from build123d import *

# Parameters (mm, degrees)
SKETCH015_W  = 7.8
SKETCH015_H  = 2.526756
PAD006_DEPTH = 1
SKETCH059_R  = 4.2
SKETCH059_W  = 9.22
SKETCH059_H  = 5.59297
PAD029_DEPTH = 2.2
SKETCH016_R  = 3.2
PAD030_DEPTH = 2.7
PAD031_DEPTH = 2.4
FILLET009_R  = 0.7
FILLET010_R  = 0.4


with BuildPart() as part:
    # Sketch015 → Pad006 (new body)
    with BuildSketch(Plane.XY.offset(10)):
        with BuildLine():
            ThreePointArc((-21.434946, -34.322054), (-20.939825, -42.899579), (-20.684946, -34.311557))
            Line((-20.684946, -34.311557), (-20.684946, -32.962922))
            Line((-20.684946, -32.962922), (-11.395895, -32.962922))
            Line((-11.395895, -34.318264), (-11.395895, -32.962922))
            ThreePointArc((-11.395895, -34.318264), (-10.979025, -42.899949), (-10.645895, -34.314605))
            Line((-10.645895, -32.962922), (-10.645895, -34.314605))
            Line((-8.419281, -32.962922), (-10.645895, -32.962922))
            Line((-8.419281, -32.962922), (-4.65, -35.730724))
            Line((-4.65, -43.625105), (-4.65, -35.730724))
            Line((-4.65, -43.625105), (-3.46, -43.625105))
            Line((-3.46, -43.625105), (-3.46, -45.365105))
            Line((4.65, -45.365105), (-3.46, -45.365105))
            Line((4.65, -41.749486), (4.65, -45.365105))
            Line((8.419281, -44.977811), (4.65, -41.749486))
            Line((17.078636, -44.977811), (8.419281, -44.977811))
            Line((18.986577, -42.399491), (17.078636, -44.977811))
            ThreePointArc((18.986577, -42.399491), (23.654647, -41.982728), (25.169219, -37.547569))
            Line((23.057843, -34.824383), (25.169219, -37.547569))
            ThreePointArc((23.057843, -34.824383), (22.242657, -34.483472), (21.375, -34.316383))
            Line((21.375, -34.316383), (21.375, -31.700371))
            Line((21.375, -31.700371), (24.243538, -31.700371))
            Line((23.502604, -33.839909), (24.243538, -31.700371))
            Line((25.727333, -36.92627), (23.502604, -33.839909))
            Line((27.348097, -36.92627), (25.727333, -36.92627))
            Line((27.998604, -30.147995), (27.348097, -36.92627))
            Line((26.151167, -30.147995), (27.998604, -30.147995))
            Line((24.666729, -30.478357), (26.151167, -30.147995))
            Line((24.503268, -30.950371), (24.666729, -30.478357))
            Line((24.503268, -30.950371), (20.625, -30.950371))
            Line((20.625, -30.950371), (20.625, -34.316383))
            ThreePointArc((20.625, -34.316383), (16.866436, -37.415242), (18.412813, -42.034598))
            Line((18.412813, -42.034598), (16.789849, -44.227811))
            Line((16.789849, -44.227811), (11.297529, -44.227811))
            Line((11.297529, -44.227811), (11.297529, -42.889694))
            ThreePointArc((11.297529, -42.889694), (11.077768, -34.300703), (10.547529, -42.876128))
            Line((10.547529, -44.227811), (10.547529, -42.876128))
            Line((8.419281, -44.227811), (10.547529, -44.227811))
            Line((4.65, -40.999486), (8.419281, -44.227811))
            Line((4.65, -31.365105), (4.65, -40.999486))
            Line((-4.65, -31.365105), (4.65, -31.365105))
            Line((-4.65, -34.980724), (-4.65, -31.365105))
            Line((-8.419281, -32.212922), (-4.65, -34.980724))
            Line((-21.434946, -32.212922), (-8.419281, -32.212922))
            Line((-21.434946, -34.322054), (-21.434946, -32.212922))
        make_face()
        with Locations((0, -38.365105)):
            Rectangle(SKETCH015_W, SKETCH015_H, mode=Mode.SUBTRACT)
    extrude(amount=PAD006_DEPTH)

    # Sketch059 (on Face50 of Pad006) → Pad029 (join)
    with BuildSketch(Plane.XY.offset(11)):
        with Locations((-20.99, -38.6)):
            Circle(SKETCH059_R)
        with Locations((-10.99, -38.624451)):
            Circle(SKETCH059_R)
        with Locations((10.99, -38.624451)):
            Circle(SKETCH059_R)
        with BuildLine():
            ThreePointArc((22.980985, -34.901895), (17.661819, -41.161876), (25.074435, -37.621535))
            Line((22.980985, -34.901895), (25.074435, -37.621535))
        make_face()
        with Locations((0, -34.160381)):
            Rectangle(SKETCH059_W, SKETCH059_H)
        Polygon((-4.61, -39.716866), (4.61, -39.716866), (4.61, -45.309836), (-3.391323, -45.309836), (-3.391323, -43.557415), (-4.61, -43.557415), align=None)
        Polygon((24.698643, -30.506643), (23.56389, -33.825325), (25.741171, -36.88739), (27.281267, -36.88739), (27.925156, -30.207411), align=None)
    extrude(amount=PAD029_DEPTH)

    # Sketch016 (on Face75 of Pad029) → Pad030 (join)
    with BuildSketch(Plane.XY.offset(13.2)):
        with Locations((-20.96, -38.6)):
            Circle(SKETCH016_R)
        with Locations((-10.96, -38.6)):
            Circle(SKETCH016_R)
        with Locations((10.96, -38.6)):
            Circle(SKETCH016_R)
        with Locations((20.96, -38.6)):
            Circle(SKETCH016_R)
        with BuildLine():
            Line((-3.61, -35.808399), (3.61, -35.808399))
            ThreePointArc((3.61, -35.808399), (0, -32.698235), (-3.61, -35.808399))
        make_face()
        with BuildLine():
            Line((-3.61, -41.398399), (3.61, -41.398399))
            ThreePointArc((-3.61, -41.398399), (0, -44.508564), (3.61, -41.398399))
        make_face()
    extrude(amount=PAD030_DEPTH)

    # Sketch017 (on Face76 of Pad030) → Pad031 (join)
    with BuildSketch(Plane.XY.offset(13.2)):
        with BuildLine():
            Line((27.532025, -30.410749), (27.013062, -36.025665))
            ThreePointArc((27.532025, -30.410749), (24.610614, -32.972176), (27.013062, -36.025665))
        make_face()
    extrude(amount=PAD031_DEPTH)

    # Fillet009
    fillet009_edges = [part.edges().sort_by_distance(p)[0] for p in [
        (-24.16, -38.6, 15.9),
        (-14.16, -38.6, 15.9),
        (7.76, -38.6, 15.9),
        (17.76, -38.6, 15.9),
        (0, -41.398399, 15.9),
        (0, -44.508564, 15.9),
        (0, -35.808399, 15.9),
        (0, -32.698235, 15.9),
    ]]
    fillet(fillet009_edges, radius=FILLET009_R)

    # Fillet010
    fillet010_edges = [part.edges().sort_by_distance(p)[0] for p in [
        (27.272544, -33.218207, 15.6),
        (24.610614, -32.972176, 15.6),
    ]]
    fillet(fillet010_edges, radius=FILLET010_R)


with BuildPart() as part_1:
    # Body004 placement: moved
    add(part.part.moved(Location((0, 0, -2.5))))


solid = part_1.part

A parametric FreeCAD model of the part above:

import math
import FreeCAD as App
import Part
import Sketcher
Q = App.Units.Quantity


def edges_at(feature, points):
    """Names of the edges that pass closest to the given points."""
    edges = feature.Shape.Edges
    near = lambda p: min(range(len(edges)), key=lambda i: edges[i].distToShape(Part.Vertex(*p))[0])
    return sorted({f"Edge{near(p) + 1}" for p in points})

doc = App.newDocument("Part")
body = doc.addObject("PartDesign::Body", "Body")

# Sketch on XY plane
sketch1 = body.newObject("Sketcher::SketchObject", "Sketch")
sketch1.AttachmentSupport = (doc.getObject("XY_Plane"), [""])
sketch1.MapMode = "FlatFace"
sketch1.AttachmentOffset = App.Placement(App.Vector(0, 0, 10), App.Rotation())
sketch1.addGeometry([
    Part.ArcOfCircle(Part.Circle(App.Vector(-21, -38.6, 0), App.Vector(0, 0, 1), 4.3), math.radians(96), math.radians(446)),  # 0
    Part.LineSegment(App.Vector(-20.68, -34.31, 0), App.Vector(-20.68, -32.96, 0)),  # 1
    Part.LineSegment(App.Vector(-20.68, -32.96, 0), App.Vector(-11.4, -32.96, 0)),  # 2
    Part.LineSegment(App.Vector(-11.4, -32.96, 0), App.Vector(-11.4, -34.32, 0)),  # 3
    Part.ArcOfCircle(Part.Circle(App.Vector(-11, -38.6, 0), App.Vector(0, 0, 1), 4.3), math.radians(95), math.radians(445)),  # 4
    Part.LineSegment(App.Vector(-10.65, -34.31, 0), App.Vector(-10.65, -32.96, 0)),  # 5
    Part.LineSegment(App.Vector(-10.65, -32.96, 0), App.Vector(-8.42, -32.96, 0)),  # 6
    Part.LineSegment(App.Vector(-8.42, -32.96, 0), App.Vector(-4.65, -35.73, 0)),  # 7
    Part.LineSegment(App.Vector(-4.65, -35.73, 0), App.Vector(-4.65, -43.63, 0)),  # 8
    Part.LineSegment(App.Vector(-4.65, -43.63, 0), App.Vector(-3.46, -43.63, 0)),  # 9
    Part.LineSegment(App.Vector(-3.46, -43.63, 0), App.Vector(-3.46, -45.37, 0)),  # 10
    Part.LineSegment(App.Vector(-3.46, -45.37, 0), App.Vector(4.65, -45.37, 0)),  # 11
    Part.LineSegment(App.Vector(4.65, -45.37, 0), App.Vector(4.65, -41.75, 0)),  # 12
    Part.LineSegment(App.Vector(4.65, -41.75, 0), App.Vector(8.42, -44.98, 0)),  # 13
    Part.LineSegment(App.Vector(8.42, -44.98, 0), App.Vector(17.08, -44.98, 0)),  # 14
    Part.LineSegment(App.Vector(17.08, -44.98, 0), App.Vector(18.99, -42.4, 0)),  # 15
    Part.ArcOfCircle(Part.Circle(App.Vector(21, -38.6, 0), App.Vector(0, 0, 1), 4.3), math.radians(-118), math.radians(14)),  # 16
    Part.LineSegment(App.Vector(25.17, -37.55, 0), App.Vector(23.06, -34.82, 0)),  # 17
    Part.ArcOfCircle(Part.Circle(App.Vector(21, -38.6, 0), App.Vector(0, 0, 1), 4.3), math.radians(61), math.radians(85)),  # 18
    Part.LineSegment(App.Vector(21.38, -34.32, 0), App.Vector(21.38, -31.7, 0)),  # 19
    Part.LineSegment(App.Vector(21.38, -31.7, 0), App.Vector(24.24, -31.7, 0)),  # 20
    Part.LineSegment(App.Vector(24.24, -31.7, 0), App.Vector(23.5, -33.84, 0)),  # 21
    Part.LineSegment(App.Vector(23.5, -33.84, 0), App.Vector(25.73, -36.93, 0)),  # 22
    Part.LineSegment(App.Vector(25.73, -36.93, 0), App.Vector(27.35, -36.93, 0)),  # 23
    Part.LineSegment(App.Vector(27.35, -36.93, 0), App.Vector(28, -30.15, 0)),  # 24
    Part.LineSegment(App.Vector(28, -30.15, 0), App.Vector(26.15, -30.15, 0)),  # 25
    Part.LineSegment(App.Vector(26.15, -30.15, 0), App.Vector(24.67, -30.48, 0)),  # 26
    Part.LineSegment(App.Vector(24.67, -30.48, 0), App.Vector(24.5, -30.95, 0)),  # 27
    Part.LineSegment(App.Vector(24.5, -30.95, 0), App.Vector(20.62, -30.95, 0)),  # 28
    Part.LineSegment(App.Vector(20.62, -30.95, 0), App.Vector(20.62, -34.32, 0)),  # 29
    Part.ArcOfCircle(Part.Circle(App.Vector(21, -38.6, 0), App.Vector(0, 0, 1), 4.3), math.radians(95), math.radians(233)),  # 30
    Part.LineSegment(App.Vector(18.41, -42.03, 0), App.Vector(16.79, -44.23, 0)),  # 31
    Part.LineSegment(App.Vector(16.79, -44.23, 0), App.Vector(11.3, -44.23, 0)),  # 32
    Part.LineSegment(App.Vector(11.3, -44.23, 0), App.Vector(11.3, -42.89, 0)),  # 33
    Part.ArcOfCircle(Part.Circle(App.Vector(11, -38.6, 0), App.Vector(0, 0, 1), 4.3), math.radians(-86), math.radians(264)),  # 34
    Part.LineSegment(App.Vector(10.55, -42.88, 0), App.Vector(10.55, -44.23, 0)),  # 35
    Part.LineSegment(App.Vector(10.55, -44.23, 0), App.Vector(8.42, -44.23, 0)),  # 36
    Part.LineSegment(App.Vector(8.42, -44.23, 0), App.Vector(4.65, -41, 0)),  # 37
    Part.LineSegment(App.Vector(4.65, -41, 0), App.Vector(4.65, -31.37, 0)),  # 38
    Part.LineSegment(App.Vector(4.65, -31.37, 0), App.Vector(-4.65, -31.37, 0)),  # 39
    Part.LineSegment(App.Vector(-4.65, -31.37, 0), App.Vector(-4.65, -34.98, 0)),  # 40
    Part.LineSegment(App.Vector(-4.65, -34.98, 0), App.Vector(-8.42, -32.21, 0)),  # 41
    Part.LineSegment(App.Vector(-8.42, -32.21, 0), App.Vector(-21.43, -32.21, 0)),  # 42
    Part.LineSegment(App.Vector(-21.43, -32.21, 0), App.Vector(-21.43, -34.32, 0)),  # 43
    Part.LineSegment(App.Vector(3.9, -39.63, 0), App.Vector(-3.9, -39.63, 0)),  # 44
    Part.LineSegment(App.Vector(-3.9, -39.63, 0), App.Vector(-3.9, -37.1, 0)),  # 45
    Part.LineSegment(App.Vector(-3.9, -37.1, 0), App.Vector(3.9, -37.1, 0)),  # 46
    Part.LineSegment(App.Vector(3.9, -37.1, 0), App.Vector(3.9, -39.63, 0)),  # 47
], False)
sketch1.addConstraint([
    Sketcher.Constraint("Coincident", 0, 2, 1, 1),
    Sketcher.Constraint("Coincident", 1, 2, 2, 1),
    Sketcher.Constraint("Coincident", 2, 2, 3, 1),
    Sketcher.Constraint("Coincident", 3, 2, 4, 1),
    Sketcher.Constraint("Coincident", 4, 2, 5, 1),
    Sketcher.Constraint("Coincident", 5, 2, 6, 1),
    Sketcher.Constraint("Coincident", 6, 2, 7, 1),
    Sketcher.Constraint("Coincident", 7, 2, 8, 1),
    Sketcher.Constraint("Coincident", 8, 2, 9, 1),
    Sketcher.Constraint("Coincident", 9, 2, 10, 1),
    Sketcher.Constraint("Coincident", 10, 2, 11, 1),
    Sketcher.Constraint("Coincident", 11, 2, 12, 1),
    Sketcher.Constraint("Coincident", 12, 2, 13, 1),
    Sketcher.Constraint("Coincident", 13, 2, 14, 1),
    Sketcher.Constraint("Coincident", 14, 2, 15, 1),
    Sketcher.Constraint("Coincident", 15, 2, 16, 1),
    Sketcher.Constraint("Coincident", 16, 2, 17, 1),
    Sketcher.Constraint("Coincident", 17, 2, 18, 1),
    Sketcher.Constraint("Coincident", 18, 2, 19, 1),
    Sketcher.Constraint("Coincident", 19, 2, 20, 1),
    Sketcher.Constraint("Coincident", 20, 2, 21, 1),
    Sketcher.Constraint("Coincident", 21, 2, 22, 1),
    Sketcher.Constraint("Coincident", 22, 2, 23, 1),
    Sketcher.Constraint("Coincident", 23, 2, 24, 1),
    Sketcher.Constraint("Coincident", 24, 2, 25, 1),
    Sketcher.Constraint("Coincident", 25, 2, 26, 1),
    Sketcher.Constraint("Coincident", 26, 2, 27, 1),
    Sketcher.Constraint("Coincident", 27, 2, 28, 1),
    Sketcher.Constraint("Coincident", 28, 2, 29, 1),
    Sketcher.Constraint("Coincident", 29, 2, 30, 1),
    Sketcher.Constraint("Coincident", 30, 2, 31, 1),
    Sketcher.Constraint("Coincident", 31, 2, 32, 1),
    Sketcher.Constraint("Coincident", 32, 2, 33, 1),
    Sketcher.Constraint("Coincident", 33, 2, 34, 1),
    Sketcher.Constraint("Coincident", 34, 2, 35, 1),
    Sketcher.Constraint("Coincident", 35, 2, 36, 1),
    Sketcher.Constraint("Coincident", 36, 2, 37, 1),
    Sketcher.Constraint("Coincident", 37, 2, 38, 1),
    Sketcher.Constraint("Coincident", 38, 2, 39, 1),
    Sketcher.Constraint("Coincident", 39, 2, 40, 1),
    Sketcher.Constraint("Coincident", 40, 2, 41, 1),
    Sketcher.Constraint("Coincident", 41, 2, 42, 1),
    Sketcher.Constraint("Coincident", 42, 2, 43, 1),
    Sketcher.Constraint("Coincident", 43, 2, 0, 1),
    Sketcher.Constraint("Coincident", 44, 2, 45, 1),
    Sketcher.Constraint("Coincident", 45, 2, 46, 1),
    Sketcher.Constraint("Coincident", 46, 2, 47, 1),
    Sketcher.Constraint("Coincident", 47, 2, 44, 1),
    Sketcher.Constraint("Vertical", 1),
    Sketcher.Constraint("Horizontal", 2),
    Sketcher.Constraint("Vertical", 3),
    Sketcher.Constraint("Vertical", 5),
    Sketcher.Constraint("Horizontal", 6),
    Sketcher.Constraint("Vertical", 8),
    Sketcher.Constraint("Horizontal", 9),
    Sketcher.Constraint("Vertical", 10),
    Sketcher.Constraint("Horizontal", 11),
    Sketcher.Constraint("Vertical", 12),
    Sketcher.Constraint("Horizontal", 14),
    Sketcher.Constraint("Vertical", 19),
    Sketcher.Constraint("Horizontal", 20),
    Sketcher.Constraint("Horizontal", 23),
    Sketcher.Constraint("Horizontal", 25),
    Sketcher.Constraint("Horizontal", 28),
    Sketcher.Constraint("Vertical", 29),
    Sketcher.Constraint("Horizontal", 32),
    Sketcher.Constraint("Vertical", 33),
    Sketcher.Constraint("Vertical", 35),
    Sketcher.Constraint("Horizontal", 36),
    Sketcher.Constraint("Vertical", 38),
    Sketcher.Constraint("Horizontal", 39),
    Sketcher.Constraint("Vertical", 40),
    Sketcher.Constraint("Horizontal", 42),
    Sketcher.Constraint("Vertical", 43),
    Sketcher.Constraint("Horizontal", 44),
    Sketcher.Constraint("Vertical", 45),
    Sketcher.Constraint("Horizontal", 46),
    Sketcher.Constraint("Vertical", 47),
    Sketcher.Constraint("Coincident", 18, 3, 16, 3),
    Sketcher.Constraint("Coincident", 30, 3, 16, 3),
    Sketcher.Constraint("Equal", 0, 4),
    Sketcher.Constraint("Equal", 4, 16),
    Sketcher.Constraint("Equal", 16, 30),
    Sketcher.Constraint("Equal", 30, 34),
    Sketcher.Constraint("Symmetric", 0, 3, 16, 3, -2),
    Sketcher.Constraint("Symmetric", 4, 3, 34, 3, -2),
    Sketcher.Constraint("Parallel", 21, 27),
    Sketcher.Constraint("Parallel", 15, 31),
    Sketcher.Constraint("Parallel", 13, 37),
    Sketcher.Constraint("Parallel", 7, 41),
    Sketcher.Constraint("Horizontal", 0, 3, 4, 3),
    Sketcher.Constraint("Horizontal", 2, 2, 5, 2),
    Sketcher.Constraint("Horizontal", 18, 2, 29, 2),
    Sketcher.Constraint("Horizontal", 32, 2, 35, 2),
    Sketcher.Constraint("Vertical", 13, 2, 36, 2),
    Sketcher.Constraint("Vertical", 12, 2, 37, 2),
    Sketcher.Constraint("Vertical", 8, 2, 39, 2),
    Sketcher.Constraint("Vertical", 6, 2, 41, 2),
    Sketcher.Constraint("Equal", 5, 35),
    Sketcher.Constraint("Equal", 12, 40),
    Sketcher.Constraint("Radius", 0, Q("4.3 mm")),
    Sketcher.Constraint("DistanceX", 39, 2, 39, 1, Q("9.3 mm")),
    Sketcher.Constraint("DistanceX", 44, 2, 44, 1, Q("7.8 mm")),
    Sketcher.Constraint("DistanceX", 0, 3, -1, 1, Q("20.999998 mm")),
    Sketcher.Constraint("DistanceX", -1, 1, 34, 3, Q("10.999998 mm")),
    Sketcher.Constraint("DistanceX", 9, 1, 9, 2, Q("1.19 mm")),
    Sketcher.Constraint("DistanceY", 10, 2, 10, 1, Q("1.74 mm")),
    Sketcher.Constraint("DistanceY", 0, 3, -1, 1, Q("38.6 mm")),
    Sketcher.Constraint("DistanceX", 44, 2, -1, 1, Q("3.9 mm")),
    Sketcher.Constraint("DistanceX", 7, 2, -1, 1, Q("4.65 mm")),
    Sketcher.Constraint("DistanceX", 3, 2, 4, 2, Q("0.75 mm")),
    Sketcher.Constraint("DistanceY", 20, 2, 27, 2, Q("0.75 mm")),
    Sketcher.Constraint("DistanceX", 28, 2, 19, 2, Q("0.75 mm")),
    Sketcher.Constraint("DistanceY", 14, 2, 31, 2, Q("0.75 mm")),
    Sketcher.Constraint("DistanceX", 34, 2, 33, 2, Q("0.75 mm")),
    Sketcher.Constraint("DistanceY", 7, 2, 40, 2, Q("0.75 mm")),
    Sketcher.Constraint("DistanceX", 42, 2, 1, 2, Q("0.75 mm")),
    Sketcher.Constraint("DistanceX", -1, 1, 18, 2, Q("21.375 mm")),
    Sketcher.Constraint("DistanceY", 17, 2, 18, 2, Q("0.508 mm")),
    Sketcher.Constraint("DistanceX", 21, 2, 24, 2, Q("4.496 mm")),
    Sketcher.Constraint("Distance", 21, Q("2.264201 mm")),
    Sketcher.Constraint("DistanceX", 2, 1, 2, 2, Q("9.289051 mm")),
    Sketcher.Constraint("DistanceX", 20, 1, 20, 2, Q("2.868538 mm")),
    Sketcher.Constraint("DistanceX", 32, 2, 32, 1, Q("5.49232 mm")),
    Sketcher.Constraint("DistanceX", 36, 2, 36, 1, Q("2.128248 mm")),
    Sketcher.Constraint("DistanceY", 8, 2, 8, 1, Q("7.894381 mm")),
    Sketcher.Constraint("DistanceY", 12, 1, 12, 2, Q("3.615619 mm")),
    Sketcher.Constraint("DistanceY", 30, 2, -1, 1, Q("42.034598 mm")),
    Sketcher.Constraint("DistanceX", 2, 2, 4, 3, Q("0.395898 mm")),
    Sketcher.Constraint("DistanceY", 8, 2, 4, 2, Q("9.3105 mm")),
    Sketcher.Constraint("DistanceY", 16, 2, 22, 2, Q("0.621299 mm")),
    Sketcher.Constraint("DistanceY", 23, 2, 20, 2, Q("5.225899 mm")),
    Sketcher.Constraint("DistanceX", 27, 2, 25, 2, Q("1.647899 mm")),
    Sketcher.Constraint("Distance", 22, Q("3.804608 mm")),
    Sketcher.Constraint("DistanceX", 6, 1, 6, 2, Q("2.226614 mm")),
    Sketcher.Constraint("DistanceX", 14, 1, 14, 2, Q("8.659355 mm")),
    Sketcher.Constraint("DistanceX", 23, 1, 23, 2, Q("1.620764 mm")),
    Sketcher.Constraint("DistanceX", 25, 2, 25, 1, Q("1.847437 mm")),
    Sketcher.Constraint("DistanceX", 28, 2, 28, 1, Q("3.878268 mm")),
    Sketcher.Constraint("DistanceY", 1, 1, 1, 2, Q("1.348635 mm")),
    Sketcher.Constraint("DistanceY", 19, 1, 19, 2, Q("2.616012 mm")),
    Sketcher.Constraint("DistanceY", 33, 1, 33, 2, Q("1.338117 mm")),
    Sketcher.Constraint("DistanceY", 45, 1, 45, 2, Q("2.526756 mm")),
    Sketcher.Constraint("DistanceX", -1, 1, 26, 2, Q("24.666729 mm")),
    Sketcher.Constraint("DistanceY", 26, 2, 25, 2, Q("0.330362 mm")),
    Sketcher.Constraint("DistanceY", 44, 2, 7, 2, Q("3.897759 mm")),
])
pad1 = body.newObject("PartDesign::Pad", "Pad")
pad1.Profile = sketch1
pad1.Length = 1

# Sketch on XY plane
sketch2 = body.newObject("Sketcher::SketchObject", "Sketch001")
sketch2.AttachmentSupport = (doc.getObject("XY_Plane"), [""])
sketch2.MapMode = "FlatFace"
sketch2.AttachmentOffset = App.Placement(App.Vector(0, 0, 11), App.Rotation())
sketch2.addGeometry([
    Part.Circle(App.Vector(-21, -38.6, 0), App.Vector(0, 0, 1), 4.2),  # 0
    Part.Circle(App.Vector(-11, -38.6, 0), App.Vector(0, 0, 1), 4.2),  # 1
    Part.Circle(App.Vector(11, -38.6, 0), App.Vector(0, 0, 1), 4.2),  # 2
    Part.ArcOfCircle(Part.Circle(App.Vector(21, -38.6, 0), App.Vector(0, 0, 1), 4.2), math.radians(62), math.radians(373)),  # 3
    Part.LineSegment(App.Vector(25.1, -37.6, 0), App.Vector(23, -34.9, 0)),  # 4
    Part.LineSegment(App.Vector(-4.6, -31.4, 0), App.Vector(-4.6, -37, 0)),  # 5
    Part.LineSegment(App.Vector(-4.6, -37, 0), App.Vector(4.6, -37, 0)),  # 6
    Part.LineSegment(App.Vector(4.6, -37, 0), App.Vector(4.6, -31.4, 0)),  # 7
    Part.LineSegment(App.Vector(4.6, -31.4, 0), App.Vector(-4.6, -31.4, 0)),  # 8
    Part.LineSegment(App.Vector(4.6, -39.7, 0), App.Vector(-4.6, -39.7, 0)),  # 9
    Part.LineSegment(App.Vector(-4.6, -39.7, 0), App.Vector(-4.6, -43.6, 0)),  # 10
    Part.LineSegment(App.Vector(-4.6, -43.6, 0), App.Vector(-3.4, -43.6, 0)),  # 11
    Part.LineSegment(App.Vector(-3.4, -43.6, 0), App.Vector(-3.4, -45.3, 0)),  # 12
    Part.LineSegment(App.Vector(-3.4, -45.3, 0), App.Vector(4.6, -45.3, 0)),  # 13
    Part.LineSegment(App.Vector(4.6, -45.3, 0), App.Vector(4.6, -39.7, 0)),  # 14
    Part.LineSegment(App.Vector(24.7, -30.5, 0), App.Vector(23.6, -33.8, 0)),  # 15
    Part.LineSegment(App.Vector(23.6, -33.8, 0), App.Vector(25.7, -36.9, 0)),  # 16
    Part.LineSegment(App.Vector(25.7, -36.9, 0), App.Vector(27.3, -36.9, 0)),  # 17
    Part.LineSegment(App.Vector(27.3, -36.9, 0), App.Vector(27.9, -30.2, 0)),  # 18
    Part.LineSegment(App.Vector(27.9, -30.2, 0), App.Vector(24.7, -30.5, 0)),  # 19
], False)
sketch2.addConstraint([
    Sketcher.Constraint("Coincident", 3, 1, 4, 2),
    Sketcher.Constraint("Coincident", 4, 1, 3, 2),
    Sketcher.Constraint("Coincident", 5, 2, 6, 1),
    Sketcher.Constraint("Coincident", 6, 2, 7, 1),
    Sketcher.Constraint("Coincident", 7, 2, 8, 1),
    Sketcher.Constraint("Coincident", 8, 2, 5, 1),
    Sketcher.Constraint("Coincident", 9, 2, 10, 1),
    Sketcher.Constraint("Coincident", 10, 2, 11, 1),
    Sketcher.Constraint("Coincident", 11, 2, 12, 1),
    Sketcher.Constraint("Coincident", 12, 2, 13, 1),
    Sketcher.Constraint("Coincident", 13, 2, 14, 1),
    Sketcher.Constraint("Coincident", 14, 2, 9, 1),
    Sketcher.Constraint("Coincident", 15, 2, 16, 1),
    Sketcher.Constraint("Coincident", 16, 2, 17, 1),
    Sketcher.Constraint("Coincident", 17, 2, 18, 1),
    Sketcher.Constraint("Coincident", 18, 2, 19, 1),
    Sketcher.Constraint("Coincident", 19, 2, 15, 1),
    Sketcher.Constraint("Vertical", 5),
    Sketcher.Constraint("Horizontal", 6),
    Sketcher.Constraint("Vertical", 7),
    Sketcher.Constraint("Horizontal", 8),
    Sketcher.Constraint("Horizontal", 9),
    Sketcher.Constraint("Vertical", 10),
    Sketcher.Constraint("Horizontal", 11),
    Sketcher.Constraint("Vertical", 12),
    Sketcher.Constraint("Horizontal", 13),
    Sketcher.Constraint("Vertical", 14),
    Sketcher.Constraint("Horizontal", 17),
    Sketcher.Constraint("Equal", 0, 1),
    Sketcher.Constraint("Equal", 1, 2),
    Sketcher.Constraint("Equal", 2, 3),
    Sketcher.Constraint("Symmetric", 1, 3, 2, 3, -2),
    Sketcher.Constraint("Symmetric", 0, 3, 3, 3, -2),
    Sketcher.Constraint("Vertical", 8, 2, 9, 2),
    Sketcher.Constraint("Vertical", 7, 2, 13, 2),
    Sketcher.Constraint("Equal", 7, 14),
    Sketcher.Constraint("Diameter", 0, Q("8.4 mm")),
    Sketcher.Constraint("DistanceX", 0, 3, 1, 3, Q("10 mm")),
    Sketcher.Constraint("DistanceX", 6, 1, 6, 2, Q("9.22 mm")),
    Sketcher.Constraint("DistanceY", 0, 3, -1, 1, Q("38.6 mm")),
    Sketcher.Constraint("DistanceX", 5, 2, 2, 3, Q("15.6 mm")),
    Sketcher.Constraint("DistanceX", 1, 3, 6, 2, Q("15.6 mm")),
    Sketcher.Constraint("DistanceY", 9, 2, 5, 2, Q("2.76 mm")),
    Sketcher.Constraint("DistanceY", 5, 2, 5, 1, Q("5.59297 mm")),
    Sketcher.Constraint("DistanceY", 10, 2, 10, 1, Q("3.840549 mm")),
    Sketcher.Constraint("Distance", 4, Q("3.432051 mm")),
    Sketcher.Constraint("Distance", 18, Q("6.71094 mm")),
    Sketcher.Constraint("Distance", 19, Q("3.240359 mm")),
    Sketcher.Constraint("DistanceX", 11, 1, 11, 2, Q("1.218677 mm")),
    Sketcher.Constraint("DistanceX", 17, 1, 17, 2, Q("1.540096 mm")),
    Sketcher.Constraint("DistanceY", 1, 3, -1, 1, Q("38.624451 mm")),
    Sketcher.Constraint("DistanceX", -1, 1, 15, 2, Q("23.56389 mm")),
    Sketcher.Constraint("DistanceX", -1, 1, 16, 2, Q("25.741171 mm")),
    Sketcher.Constraint("DistanceY", 16, 2, -1, 1, Q("36.88739 mm")),
    Sketcher.Constraint("DistanceY", 18, 2, -1, 1, Q("30.207411 mm")),
    Sketcher.Constraint("DistanceX", 3, 1, 4, 1, Q("2.09345 mm")),
    Sketcher.Constraint("DistanceY", 5, 2, 3, 1, Q("2.054971 mm")),
    Sketcher.Constraint("DistanceY", 3, 1, 15, 2, Q("1.07657 mm")),
    Sketcher.Constraint("DistanceY", 19, 2, 18, 2, Q("0.299232 mm")),
])
pad2 = body.newObject("PartDesign::Pad", "Pad001")
pad2.Profile = sketch2
pad2.Length = 2.2

# Sketch on XY plane
sketch3 = body.newObject("Sketcher::SketchObject", "Sketch002")
sketch3.AttachmentSupport = (doc.getObject("XY_Plane"), [""])
sketch3.MapMode = "FlatFace"
sketch3.AttachmentOffset = App.Placement(App.Vector(0, 0, 13.2), App.Rotation())
sketch3.addGeometry([
    Part.Circle(App.Vector(-21, -38.6, 0), App.Vector(0, 0, 1), 3.2),  # 0
    Part.Circle(App.Vector(-11, -38.6, 0), App.Vector(0, 0, 1), 3.2),  # 1
    Part.Circle(App.Vector(11, -38.6, 0), App.Vector(0, 0, 1), 3.2),  # 2
    Part.Circle(App.Vector(21, -38.6, 0), App.Vector(0, 0, 1), 3.2),  # 3
    Part.LineSegment(App.Vector(-3.6, -35.8, 0), App.Vector(3.6, -35.8, 0)),  # 4
    Part.ArcOfCircle(Part.Circle(App.Vector(0, -36.3, 0), App.Vector(0, 0, 1), 3.7), math.radians(9), math.radians(171)),  # 5
    Part.LineSegment(App.Vector(3.6, -41.4, 0), App.Vector(-3.6, -41.4, 0)),  # 6
    Part.ArcOfCircle(Part.Circle(App.Vector(0, -40.9, 0), App.Vector(0, 0, 1), 3.7), math.radians(-171), math.radians(-9)),  # 7
], False)
sketch3.addConstraint([
    Sketcher.Constraint("Coincident", 4, 1, 5, 2),
    Sketcher.Constraint("Coincident", 5, 1, 4, 2),
    Sketcher.Constraint("Coincident", 6, 1, 7, 2),
    Sketcher.Constraint("Coincident", 7, 1, 6, 2),
    Sketcher.Constraint("Horizontal", 4),
    Sketcher.Constraint("Horizontal", 6),
    Sketcher.Constraint("Equal", 0, 1),
    Sketcher.Constraint("Equal", 1, 2),
    Sketcher.Constraint("Equal", 2, 3),
    Sketcher.Constraint("Equal", 5, 7),
    Sketcher.Constraint("Symmetric", 1, 3, 2, 3, -2),
    Sketcher.Constraint("Symmetric", 0, 3, 3, 3, -2),
    Sketcher.Constraint("PointOnObject", 5, 3, -2),
    Sketcher.Constraint("PointOnObject", 7, 3, -2),
    Sketcher.Constraint("Horizontal", 0, 3, 1, 3),
    Sketcher.Constraint("Vertical", 5, 1, 6, 1),
    Sketcher.Constraint("Diameter", 0, Q("6.4 mm")),
    Sketcher.Constraint("DistanceX", 0, 3, 1, 3, Q("10 mm")),
    Sketcher.Constraint("DistanceX", 4, 1, 4, 2, Q("7.22 mm")),
    Sketcher.Constraint("DistanceY", 0, 3, -1, 1, Q("38.6 mm")),
    Sketcher.Constraint("DistanceX", 0, 3, -1, 1, Q("20.96 mm")),
    Sketcher.Constraint("DistanceY", 7, 3, 5, 3, Q("4.51 mm")),
    Sketcher.Constraint("DistanceY", 5, 3, 4, 1, Q("0.54 mm")),
    Sketcher.Constraint("DistanceY", 5, 3, -1, 1, Q("36.348399 mm")),
])
pad3 = body.newObject("PartDesign::Pad", "Pad002")
pad3.Profile = sketch3
pad3.Length = 2.7

# Sketch on XY plane
sketch4 = body.newObject("Sketcher::SketchObject", "Sketch003")
sketch4.AttachmentSupport = (doc.getObject("XY_Plane"), [""])
sketch4.MapMode = "FlatFace"
sketch4.AttachmentOffset = App.Placement(App.Vector(0, 0, 13.2), App.Rotation())
sketch4.addGeometry([
    Part.LineSegment(App.Vector(27, -36, 0), App.Vector(27.5, -30.4, 0)),
    Part.ArcOfCircle(Part.Circle(App.Vector(27.4, -33.2, 0), App.Vector(0, 0, 1), 2.8), math.radians(88), math.radians(262)),
], False)
sketch4.addConstraint([
    Sketcher.Constraint("Coincident", 0, 1, 1, 2),
    Sketcher.Constraint("Coincident", 1, 1, 0, 2),
    Sketcher.Constraint("Radius", 1, Q("2.823419 mm")),
    Sketcher.Constraint("DistanceX", -1, 1, 1, 3, Q("27.42205 mm")),
    Sketcher.Constraint("DistanceY", 1, 1, -1, 1, Q("30.410749 mm")),
    Sketcher.Constraint("DistanceX", 0, 1, 1, 3, Q("0.408988 mm")),
    Sketcher.Constraint("Distance", 0, Q("5.638848 mm")),
])
pad4 = body.newObject("PartDesign::Pad", "Pad003")
pad4.Profile = sketch4
pad4.Length = 2.4
doc.recompute()

fillet = body.newObject("PartDesign::Fillet", "Fillet")
fillet.Base = (pad4, edges_at(pad4, [
    (-24.16, -38.6, 15.9),
    (-14.16, -38.6, 15.9),
    (7.76, -38.6, 15.9),
    (17.76, -38.6, 15.9),
    (0, -41.398, 15.9),
    (0, -44.509, 15.9),
    (0, -35.808, 15.9),
    (0, -32.698, 15.9),
]))
fillet.Radius = 0.7
doc.recompute()

fillet2 = body.newObject("PartDesign::Fillet", "Fillet001")
fillet2.Base = (fillet, edges_at(fillet, [(27.273, -33.218, 15.6), (24.611, -32.972, 15.6)]))
fillet2.Radius = 0.4
body2 = doc.addObject("PartDesign::Body", "Body001")
doc.recompute()

body.Placement = App.Placement(App.Vector(0, 0, -2.5), App.Rotation(App.Vector(0, 0, 1), 0))
boolean = body2.newObject("PartDesign::Boolean", "Boolean")
boolean.Type = "Fuse"
boolean.addObjects([body])

doc.recompute()
